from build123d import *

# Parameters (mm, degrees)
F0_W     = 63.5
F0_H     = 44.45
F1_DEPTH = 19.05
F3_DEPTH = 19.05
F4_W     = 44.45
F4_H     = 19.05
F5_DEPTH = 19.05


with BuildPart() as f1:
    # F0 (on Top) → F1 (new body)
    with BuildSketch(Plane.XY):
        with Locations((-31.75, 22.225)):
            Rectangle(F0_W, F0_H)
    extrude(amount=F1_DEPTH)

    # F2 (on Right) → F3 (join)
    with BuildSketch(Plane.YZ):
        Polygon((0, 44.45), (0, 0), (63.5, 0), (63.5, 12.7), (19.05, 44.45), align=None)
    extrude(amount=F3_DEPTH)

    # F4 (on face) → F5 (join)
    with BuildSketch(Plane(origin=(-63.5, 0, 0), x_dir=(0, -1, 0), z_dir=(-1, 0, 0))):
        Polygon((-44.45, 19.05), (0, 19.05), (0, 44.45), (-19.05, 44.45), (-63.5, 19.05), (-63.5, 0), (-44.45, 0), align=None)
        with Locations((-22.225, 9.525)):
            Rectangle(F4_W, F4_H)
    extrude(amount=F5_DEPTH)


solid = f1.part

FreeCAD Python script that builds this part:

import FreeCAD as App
import Part
import Sketcher
Q = App.Units.Quantity


def add_polygon(sketch, points):
    """Adds a closed chain of lines whose ends are joined by coincident constraints."""
    first, n = sketch.GeometryCount, len(points)
    for a, b in zip(points, points[1:] + points[:1]):
        sketch.addGeometry(Part.LineSegment(App.Vector(*a, 0), App.Vector(*b, 0)), False)
    for i in range(n):
        sketch.addConstraint(Sketcher.Constraint("Coincident", first + i, 2, first + (i + 1) % n, 1))

doc = App.newDocument("Part")
body = doc.addObject("PartDesign::Body", "Body")

# Sketch on XY plane
sketch1 = doc.addObject("Sketcher::SketchObject", "Sketch")
body.addObject(sketch1)
sketch1.AttachmentSupport = (doc.XY_Plane, [""])
sketch1.MapMode = "FlatFace"
add_polygon(sketch1, [(-64, 44), (-64, 0), (0, 0), (0, 44)])  # lines 0-3
sketch1.addConstraint(Sketcher.Constraint("Vertical", 0))
sketch1.addConstraint(Sketcher.Constraint("Horizontal", 1))
sketch1.addConstraint(Sketcher.Constraint("Vertical", 2))
sketch1.addConstraint(Sketcher.Constraint("Horizontal", 3))
sketch1.addConstraint(Sketcher.Constraint("Coincident", 1, 2, -1, 1))
sketch1.addConstraint(Sketcher.Constraint("DistanceX", 1, 1, 1, 2, Q("2.5 in")))
sketch1.addConstraint(Sketcher.Constraint("DistanceY", 0, 2, 0, 1, Q("1.75 in")))
pad1 = doc.addObject("PartDesign::Pad", "Pad")
body.addObject(pad1)
pad1.Profile = sketch1
pad1.Length = Q("0.75 in")

# Sketch on YZ plane
sketch2 = doc.addObject("Sketcher::SketchObject", "Sketch001")
body.addObject(sketch2)
sketch2.AttachmentSupport = (doc.YZ_Plane, [""])
sketch2.MapMode = "FlatFace"
add_polygon(sketch2, [(0, 44), (0, 0), (64, 0), (64, 13), (19, 44)])  # lines 0-4
sketch2.addConstraint(Sketcher.Constraint("Vertical", 0))
sketch2.addConstraint(Sketcher.Constraint("Horizontal", 1))
sketch2.addConstraint(Sketcher.Constraint("Vertical", 2))
sketch2.addConstraint(Sketcher.Constraint("Horizontal", 4))
sketch2.addConstraint(Sketcher.Constraint("Coincident", 0, 2, -1, 1))
sketch2.addConstraint(Sketcher.Constraint("DistanceX", 1, 1, 1, 2, Q("2.5 in")))
sketch2.addConstraint(Sketcher.Constraint("DistanceY", 2, 1, 2, 2, Q("0.5 in")))
sketch2.addConstraint(Sketcher.Constraint("DistanceX", 4, 2, 4, 1, Q("0.75 in")))
sketch2.addConstraint(Sketcher.Constraint("DistanceY", 0, 2, 0, 1, Q("1.75 in")))
pad2 = doc.addObject("PartDesign::Pad", "Pad001")
body.addObject(pad2)
pad2.Profile = sketch2
pad2.Length = Q("0.75 in")

# Sketch on YZ plane
sketch3 = doc.addObject("Sketcher::SketchObject", "Sketch002")
body.addObject(sketch3)
sketch3.AttachmentSupport = (doc.YZ_Plane, [""])
sketch3.MapMode = "FlatFace"
sketch3.AttachmentOffset = App.Placement(App.Vector(0, 0, -2.5 * 25.4), App.Rotation())
add_polygon(sketch3, [(0, 44), (19, 44), (64, 19), (64, 0), (0, 0)])  # lines 0-4
sketch3.addConstraint(Sketcher.Constraint("Horizontal", 0))
sketch3.addConstraint(Sketcher.Constraint("Vertical", 2))
sketch3.addConstraint(Sketcher.Constraint("Horizontal", 3))
sketch3.addConstraint(Sketcher.Constraint("Vertical", 4))
sketch3.addConstraint(Sketcher.Constraint("Coincident", 3, 2, -1, 1))
sketch3.addConstraint(Sketcher.Constraint("Equal", 0, 2))
sketch3.addConstraint(Sketcher.Constraint("DistanceX", 3, 2, 3, 1, Q("2.5 in")))
sketch3.addConstraint(Sketcher.Constraint("DistanceY", 1, 2, 0, 2, Q("1 in")))
sketch3.addConstraint(Sketcher.Constraint("DistanceX", 0, 1, 0, 2, Q("0.75 in")))
pad3 = doc.addObject("PartDesign::Pad", "Pad002")
body.addObject(pad3)
pad3.Profile = sketch3
pad3.Length = Q("0.75 in")
pad3.Reversed = True

doc.recompute()
